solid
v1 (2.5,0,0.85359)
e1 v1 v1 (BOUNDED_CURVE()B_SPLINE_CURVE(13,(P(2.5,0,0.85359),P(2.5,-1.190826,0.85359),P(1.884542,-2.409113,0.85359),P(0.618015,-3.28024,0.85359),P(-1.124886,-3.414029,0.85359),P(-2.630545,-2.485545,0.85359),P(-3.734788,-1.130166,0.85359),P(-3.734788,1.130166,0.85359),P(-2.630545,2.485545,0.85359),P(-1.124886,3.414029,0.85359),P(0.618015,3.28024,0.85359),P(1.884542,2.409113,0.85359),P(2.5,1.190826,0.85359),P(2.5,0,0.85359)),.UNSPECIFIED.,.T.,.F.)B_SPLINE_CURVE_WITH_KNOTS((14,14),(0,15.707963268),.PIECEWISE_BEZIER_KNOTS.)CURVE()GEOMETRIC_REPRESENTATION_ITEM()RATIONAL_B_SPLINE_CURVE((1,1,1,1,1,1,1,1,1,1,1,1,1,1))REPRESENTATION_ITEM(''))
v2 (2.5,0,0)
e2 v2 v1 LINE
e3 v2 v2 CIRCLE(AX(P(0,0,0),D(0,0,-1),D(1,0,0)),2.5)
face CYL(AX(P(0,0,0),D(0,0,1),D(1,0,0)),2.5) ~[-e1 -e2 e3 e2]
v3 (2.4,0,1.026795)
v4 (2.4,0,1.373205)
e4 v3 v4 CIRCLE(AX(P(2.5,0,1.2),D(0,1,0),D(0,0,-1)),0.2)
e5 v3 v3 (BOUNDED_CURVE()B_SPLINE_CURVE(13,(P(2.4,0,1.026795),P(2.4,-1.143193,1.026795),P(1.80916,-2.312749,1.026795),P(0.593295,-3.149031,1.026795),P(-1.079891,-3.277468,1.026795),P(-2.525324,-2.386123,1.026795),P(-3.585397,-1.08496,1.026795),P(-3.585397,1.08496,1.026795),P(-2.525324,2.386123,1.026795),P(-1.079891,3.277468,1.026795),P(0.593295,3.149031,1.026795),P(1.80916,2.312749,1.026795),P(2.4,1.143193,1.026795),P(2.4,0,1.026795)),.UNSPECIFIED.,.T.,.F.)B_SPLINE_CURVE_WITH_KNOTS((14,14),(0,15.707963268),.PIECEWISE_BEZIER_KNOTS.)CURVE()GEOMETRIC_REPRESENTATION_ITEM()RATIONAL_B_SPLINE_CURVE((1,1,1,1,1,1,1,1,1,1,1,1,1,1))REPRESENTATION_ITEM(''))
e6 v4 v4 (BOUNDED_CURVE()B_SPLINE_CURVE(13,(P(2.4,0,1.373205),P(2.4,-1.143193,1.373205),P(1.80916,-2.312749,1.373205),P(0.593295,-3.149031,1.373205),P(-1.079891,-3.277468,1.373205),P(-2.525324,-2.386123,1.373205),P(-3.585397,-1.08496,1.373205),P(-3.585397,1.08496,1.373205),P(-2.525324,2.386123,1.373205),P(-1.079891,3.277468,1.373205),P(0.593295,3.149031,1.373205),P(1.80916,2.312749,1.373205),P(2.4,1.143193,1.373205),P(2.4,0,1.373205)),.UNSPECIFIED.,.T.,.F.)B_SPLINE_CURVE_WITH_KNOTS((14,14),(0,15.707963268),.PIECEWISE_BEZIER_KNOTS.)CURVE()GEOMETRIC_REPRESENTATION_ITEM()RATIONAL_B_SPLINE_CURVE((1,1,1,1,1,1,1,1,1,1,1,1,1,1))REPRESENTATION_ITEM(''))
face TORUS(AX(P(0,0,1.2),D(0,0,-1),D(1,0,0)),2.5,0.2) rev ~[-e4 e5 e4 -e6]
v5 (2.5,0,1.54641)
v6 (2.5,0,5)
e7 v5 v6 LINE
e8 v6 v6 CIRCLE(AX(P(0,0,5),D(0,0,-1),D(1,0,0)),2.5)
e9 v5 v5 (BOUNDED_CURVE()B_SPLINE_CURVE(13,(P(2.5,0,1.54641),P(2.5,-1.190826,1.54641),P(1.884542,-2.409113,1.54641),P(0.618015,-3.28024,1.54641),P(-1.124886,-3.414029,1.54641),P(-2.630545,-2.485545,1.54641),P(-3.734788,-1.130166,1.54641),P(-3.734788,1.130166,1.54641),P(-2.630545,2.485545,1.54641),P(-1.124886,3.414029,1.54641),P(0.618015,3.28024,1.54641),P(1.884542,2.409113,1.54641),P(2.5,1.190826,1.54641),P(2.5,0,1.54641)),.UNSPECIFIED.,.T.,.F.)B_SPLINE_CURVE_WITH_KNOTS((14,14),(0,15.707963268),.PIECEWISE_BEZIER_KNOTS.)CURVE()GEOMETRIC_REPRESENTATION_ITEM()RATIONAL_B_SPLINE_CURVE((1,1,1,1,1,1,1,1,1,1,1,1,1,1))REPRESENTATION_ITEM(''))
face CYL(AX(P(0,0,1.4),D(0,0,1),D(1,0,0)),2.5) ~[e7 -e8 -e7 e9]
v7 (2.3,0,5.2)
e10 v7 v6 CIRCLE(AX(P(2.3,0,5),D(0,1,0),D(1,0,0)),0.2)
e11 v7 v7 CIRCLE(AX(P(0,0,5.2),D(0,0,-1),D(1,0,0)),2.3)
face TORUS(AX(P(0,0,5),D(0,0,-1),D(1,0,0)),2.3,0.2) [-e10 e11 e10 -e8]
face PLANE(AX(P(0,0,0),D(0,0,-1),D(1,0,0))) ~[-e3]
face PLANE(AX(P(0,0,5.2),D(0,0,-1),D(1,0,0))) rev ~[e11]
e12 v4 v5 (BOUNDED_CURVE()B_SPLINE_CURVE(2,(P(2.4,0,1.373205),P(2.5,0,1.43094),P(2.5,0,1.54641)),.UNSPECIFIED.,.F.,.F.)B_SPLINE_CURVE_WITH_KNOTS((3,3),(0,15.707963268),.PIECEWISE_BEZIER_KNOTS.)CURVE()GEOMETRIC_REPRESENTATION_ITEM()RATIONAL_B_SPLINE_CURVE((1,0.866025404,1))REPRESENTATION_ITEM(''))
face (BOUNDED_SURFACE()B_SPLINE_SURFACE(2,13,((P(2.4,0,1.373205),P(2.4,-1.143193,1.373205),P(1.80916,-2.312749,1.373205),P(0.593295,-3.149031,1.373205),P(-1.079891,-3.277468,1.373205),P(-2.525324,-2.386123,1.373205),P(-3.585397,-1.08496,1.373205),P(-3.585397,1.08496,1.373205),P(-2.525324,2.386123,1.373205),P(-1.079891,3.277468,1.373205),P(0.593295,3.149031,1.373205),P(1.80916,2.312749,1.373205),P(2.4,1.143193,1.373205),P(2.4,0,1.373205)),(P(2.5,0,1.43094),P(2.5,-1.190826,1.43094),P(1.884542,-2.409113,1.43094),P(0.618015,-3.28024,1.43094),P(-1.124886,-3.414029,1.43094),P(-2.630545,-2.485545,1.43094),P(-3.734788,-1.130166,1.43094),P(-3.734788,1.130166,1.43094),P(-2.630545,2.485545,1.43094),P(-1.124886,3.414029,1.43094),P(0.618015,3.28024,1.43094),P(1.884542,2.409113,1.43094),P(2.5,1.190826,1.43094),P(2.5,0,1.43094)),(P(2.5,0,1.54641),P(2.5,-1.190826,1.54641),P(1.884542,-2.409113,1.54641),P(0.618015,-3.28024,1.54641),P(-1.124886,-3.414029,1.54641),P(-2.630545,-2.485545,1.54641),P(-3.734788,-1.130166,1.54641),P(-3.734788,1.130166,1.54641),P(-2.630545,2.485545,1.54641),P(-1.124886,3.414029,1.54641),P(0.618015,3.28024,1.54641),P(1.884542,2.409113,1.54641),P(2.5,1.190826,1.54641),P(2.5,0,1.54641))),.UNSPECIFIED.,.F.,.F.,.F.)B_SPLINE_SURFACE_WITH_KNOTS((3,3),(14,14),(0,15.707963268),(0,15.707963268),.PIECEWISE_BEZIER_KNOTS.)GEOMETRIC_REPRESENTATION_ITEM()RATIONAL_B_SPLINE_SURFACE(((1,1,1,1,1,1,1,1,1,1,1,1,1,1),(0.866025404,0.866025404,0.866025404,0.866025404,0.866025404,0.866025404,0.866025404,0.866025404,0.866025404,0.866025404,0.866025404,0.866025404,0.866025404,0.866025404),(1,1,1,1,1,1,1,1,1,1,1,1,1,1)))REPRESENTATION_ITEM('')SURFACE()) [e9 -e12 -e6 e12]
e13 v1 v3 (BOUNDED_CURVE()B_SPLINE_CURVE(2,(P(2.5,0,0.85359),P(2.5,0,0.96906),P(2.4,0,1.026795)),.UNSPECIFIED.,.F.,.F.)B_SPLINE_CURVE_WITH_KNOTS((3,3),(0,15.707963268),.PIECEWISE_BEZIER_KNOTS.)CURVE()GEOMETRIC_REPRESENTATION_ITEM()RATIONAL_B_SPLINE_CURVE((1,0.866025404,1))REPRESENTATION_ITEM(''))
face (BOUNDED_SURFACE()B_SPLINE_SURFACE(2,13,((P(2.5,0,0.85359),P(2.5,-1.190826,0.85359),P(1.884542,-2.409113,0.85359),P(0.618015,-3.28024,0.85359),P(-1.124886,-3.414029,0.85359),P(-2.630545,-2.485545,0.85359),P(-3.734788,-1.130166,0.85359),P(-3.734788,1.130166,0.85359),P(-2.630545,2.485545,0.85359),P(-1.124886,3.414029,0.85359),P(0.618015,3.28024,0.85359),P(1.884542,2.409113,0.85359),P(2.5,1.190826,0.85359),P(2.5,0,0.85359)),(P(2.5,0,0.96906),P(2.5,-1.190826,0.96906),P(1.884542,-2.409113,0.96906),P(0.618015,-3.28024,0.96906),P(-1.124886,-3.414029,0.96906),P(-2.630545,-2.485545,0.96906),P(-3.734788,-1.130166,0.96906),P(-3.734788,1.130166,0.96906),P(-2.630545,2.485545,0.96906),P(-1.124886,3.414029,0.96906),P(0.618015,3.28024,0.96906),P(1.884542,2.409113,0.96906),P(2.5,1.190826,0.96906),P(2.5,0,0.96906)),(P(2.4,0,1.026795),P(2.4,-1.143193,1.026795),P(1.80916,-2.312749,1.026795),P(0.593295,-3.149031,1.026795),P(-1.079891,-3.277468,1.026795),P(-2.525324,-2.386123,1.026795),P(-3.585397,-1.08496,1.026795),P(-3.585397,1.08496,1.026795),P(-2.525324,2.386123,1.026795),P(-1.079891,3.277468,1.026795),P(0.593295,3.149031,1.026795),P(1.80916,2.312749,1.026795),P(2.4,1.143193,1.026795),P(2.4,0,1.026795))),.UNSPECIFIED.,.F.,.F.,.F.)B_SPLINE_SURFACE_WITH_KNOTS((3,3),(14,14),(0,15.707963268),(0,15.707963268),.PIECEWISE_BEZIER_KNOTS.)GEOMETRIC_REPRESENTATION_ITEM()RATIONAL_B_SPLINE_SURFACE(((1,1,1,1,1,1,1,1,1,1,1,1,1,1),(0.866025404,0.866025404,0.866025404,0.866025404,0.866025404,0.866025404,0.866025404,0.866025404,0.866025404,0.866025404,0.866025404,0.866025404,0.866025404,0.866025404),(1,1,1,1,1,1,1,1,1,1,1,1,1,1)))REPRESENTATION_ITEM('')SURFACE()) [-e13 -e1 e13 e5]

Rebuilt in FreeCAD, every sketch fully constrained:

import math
import FreeCAD as App
import Part
import Sketcher

V = App.Vector


def edges_at(feature, points):
    """Names of the edges that pass closest to the given points."""
    edges = feature.Shape.Edges
    near = lambda p: min(range(len(edges)), key=lambda i: edges[i].distToShape(Part.Vertex(*p))[0])
    return sorted({f"Edge{near(p) + 1}" for p in points})

doc = App.newDocument("Part")
body = doc.addObject("PartDesign::Body", "Body")

# Sketch on XZ plane
sketch1 = body.newObject("Sketcher::SketchObject", "Sketch")
sketch1.AttachmentSupport = (doc.getObject("XZ_Plane"), [""])
sketch1.MapMode = "FlatFace"
sketch1.addGeometry([
    Part.LineSegment(V(2.5, 5.2, 0), V(0, 5.2, 0)),  # 0
    Part.LineSegment(V(0, 5.2, 0), V(0, 0, 0)),  # 1
    Part.LineSegment(V(0, 0, 0), V(2.5, 0, 0)),  # 2
    Part.LineSegment(V(2.5, 0, 0), V(2.5, 1, 0)),  # 3
    Part.ArcOfCircle(Part.Circle(V(2.5, 1.2, 0), V(0, 0, 1), 0.2), math.radians(90), math.radians(270)),  # 4
    Part.LineSegment(V(2.5, 1.4, 0), V(2.5, 5.2, 0)),  # 5
], False)
sketch1.addConstraint([
    Sketcher.Constraint("Coincident", 0, 2, 1, 1),
    Sketcher.Constraint("Coincident", 1, 2, 2, 1),
    Sketcher.Constraint("Coincident", 2, 2, 3, 1),
    Sketcher.Constraint("Coincident", 3, 2, 4, 2),
    Sketcher.Constraint("Coincident", 4, 1, 5, 1),
    Sketcher.Constraint("Coincident", 5, 2, 0, 1),
    Sketcher.Constraint("Horizontal", 0),
    Sketcher.Constraint("Vertical", 1),
    Sketcher.Constraint("Horizontal", 2),
    Sketcher.Constraint("Vertical", 3),
    Sketcher.Constraint("Vertical", 5),
    Sketcher.Constraint("Coincident", 1, 2, -1, 1),
    Sketcher.Constraint("Vertical", 4, 3, 2, 2),
    Sketcher.Constraint("Vertical", 3, 2, 4, 1),
    Sketcher.Constraint("Radius", 4, 0.2),
    Sketcher.Constraint("DistanceY", 3, 1, 3, 2, 1.0),
    Sketcher.Constraint("DistanceX", 0, 2, 0, 1, 2.5),
    Sketcher.Constraint("DistanceY", 1, 2, 1, 1, 5.2),
])
revolution = body.newObject("PartDesign::Revolution", "Revolution")
revolution.Profile = sketch1
revolution.ReferenceAxis = (sketch1, ["V_Axis"])
revolution.Angle = 360
doc.recompute()

fillet = body.newObject("PartDesign::Fillet", "Fillet")
fillet.Base = (revolution, edges_at(revolution, [(-2.5, 0, 1.4), (-2.5, 0, 1), (-2.5, 0, 5.2)]))
fillet.Radius = 0.2

doc.recompute()
